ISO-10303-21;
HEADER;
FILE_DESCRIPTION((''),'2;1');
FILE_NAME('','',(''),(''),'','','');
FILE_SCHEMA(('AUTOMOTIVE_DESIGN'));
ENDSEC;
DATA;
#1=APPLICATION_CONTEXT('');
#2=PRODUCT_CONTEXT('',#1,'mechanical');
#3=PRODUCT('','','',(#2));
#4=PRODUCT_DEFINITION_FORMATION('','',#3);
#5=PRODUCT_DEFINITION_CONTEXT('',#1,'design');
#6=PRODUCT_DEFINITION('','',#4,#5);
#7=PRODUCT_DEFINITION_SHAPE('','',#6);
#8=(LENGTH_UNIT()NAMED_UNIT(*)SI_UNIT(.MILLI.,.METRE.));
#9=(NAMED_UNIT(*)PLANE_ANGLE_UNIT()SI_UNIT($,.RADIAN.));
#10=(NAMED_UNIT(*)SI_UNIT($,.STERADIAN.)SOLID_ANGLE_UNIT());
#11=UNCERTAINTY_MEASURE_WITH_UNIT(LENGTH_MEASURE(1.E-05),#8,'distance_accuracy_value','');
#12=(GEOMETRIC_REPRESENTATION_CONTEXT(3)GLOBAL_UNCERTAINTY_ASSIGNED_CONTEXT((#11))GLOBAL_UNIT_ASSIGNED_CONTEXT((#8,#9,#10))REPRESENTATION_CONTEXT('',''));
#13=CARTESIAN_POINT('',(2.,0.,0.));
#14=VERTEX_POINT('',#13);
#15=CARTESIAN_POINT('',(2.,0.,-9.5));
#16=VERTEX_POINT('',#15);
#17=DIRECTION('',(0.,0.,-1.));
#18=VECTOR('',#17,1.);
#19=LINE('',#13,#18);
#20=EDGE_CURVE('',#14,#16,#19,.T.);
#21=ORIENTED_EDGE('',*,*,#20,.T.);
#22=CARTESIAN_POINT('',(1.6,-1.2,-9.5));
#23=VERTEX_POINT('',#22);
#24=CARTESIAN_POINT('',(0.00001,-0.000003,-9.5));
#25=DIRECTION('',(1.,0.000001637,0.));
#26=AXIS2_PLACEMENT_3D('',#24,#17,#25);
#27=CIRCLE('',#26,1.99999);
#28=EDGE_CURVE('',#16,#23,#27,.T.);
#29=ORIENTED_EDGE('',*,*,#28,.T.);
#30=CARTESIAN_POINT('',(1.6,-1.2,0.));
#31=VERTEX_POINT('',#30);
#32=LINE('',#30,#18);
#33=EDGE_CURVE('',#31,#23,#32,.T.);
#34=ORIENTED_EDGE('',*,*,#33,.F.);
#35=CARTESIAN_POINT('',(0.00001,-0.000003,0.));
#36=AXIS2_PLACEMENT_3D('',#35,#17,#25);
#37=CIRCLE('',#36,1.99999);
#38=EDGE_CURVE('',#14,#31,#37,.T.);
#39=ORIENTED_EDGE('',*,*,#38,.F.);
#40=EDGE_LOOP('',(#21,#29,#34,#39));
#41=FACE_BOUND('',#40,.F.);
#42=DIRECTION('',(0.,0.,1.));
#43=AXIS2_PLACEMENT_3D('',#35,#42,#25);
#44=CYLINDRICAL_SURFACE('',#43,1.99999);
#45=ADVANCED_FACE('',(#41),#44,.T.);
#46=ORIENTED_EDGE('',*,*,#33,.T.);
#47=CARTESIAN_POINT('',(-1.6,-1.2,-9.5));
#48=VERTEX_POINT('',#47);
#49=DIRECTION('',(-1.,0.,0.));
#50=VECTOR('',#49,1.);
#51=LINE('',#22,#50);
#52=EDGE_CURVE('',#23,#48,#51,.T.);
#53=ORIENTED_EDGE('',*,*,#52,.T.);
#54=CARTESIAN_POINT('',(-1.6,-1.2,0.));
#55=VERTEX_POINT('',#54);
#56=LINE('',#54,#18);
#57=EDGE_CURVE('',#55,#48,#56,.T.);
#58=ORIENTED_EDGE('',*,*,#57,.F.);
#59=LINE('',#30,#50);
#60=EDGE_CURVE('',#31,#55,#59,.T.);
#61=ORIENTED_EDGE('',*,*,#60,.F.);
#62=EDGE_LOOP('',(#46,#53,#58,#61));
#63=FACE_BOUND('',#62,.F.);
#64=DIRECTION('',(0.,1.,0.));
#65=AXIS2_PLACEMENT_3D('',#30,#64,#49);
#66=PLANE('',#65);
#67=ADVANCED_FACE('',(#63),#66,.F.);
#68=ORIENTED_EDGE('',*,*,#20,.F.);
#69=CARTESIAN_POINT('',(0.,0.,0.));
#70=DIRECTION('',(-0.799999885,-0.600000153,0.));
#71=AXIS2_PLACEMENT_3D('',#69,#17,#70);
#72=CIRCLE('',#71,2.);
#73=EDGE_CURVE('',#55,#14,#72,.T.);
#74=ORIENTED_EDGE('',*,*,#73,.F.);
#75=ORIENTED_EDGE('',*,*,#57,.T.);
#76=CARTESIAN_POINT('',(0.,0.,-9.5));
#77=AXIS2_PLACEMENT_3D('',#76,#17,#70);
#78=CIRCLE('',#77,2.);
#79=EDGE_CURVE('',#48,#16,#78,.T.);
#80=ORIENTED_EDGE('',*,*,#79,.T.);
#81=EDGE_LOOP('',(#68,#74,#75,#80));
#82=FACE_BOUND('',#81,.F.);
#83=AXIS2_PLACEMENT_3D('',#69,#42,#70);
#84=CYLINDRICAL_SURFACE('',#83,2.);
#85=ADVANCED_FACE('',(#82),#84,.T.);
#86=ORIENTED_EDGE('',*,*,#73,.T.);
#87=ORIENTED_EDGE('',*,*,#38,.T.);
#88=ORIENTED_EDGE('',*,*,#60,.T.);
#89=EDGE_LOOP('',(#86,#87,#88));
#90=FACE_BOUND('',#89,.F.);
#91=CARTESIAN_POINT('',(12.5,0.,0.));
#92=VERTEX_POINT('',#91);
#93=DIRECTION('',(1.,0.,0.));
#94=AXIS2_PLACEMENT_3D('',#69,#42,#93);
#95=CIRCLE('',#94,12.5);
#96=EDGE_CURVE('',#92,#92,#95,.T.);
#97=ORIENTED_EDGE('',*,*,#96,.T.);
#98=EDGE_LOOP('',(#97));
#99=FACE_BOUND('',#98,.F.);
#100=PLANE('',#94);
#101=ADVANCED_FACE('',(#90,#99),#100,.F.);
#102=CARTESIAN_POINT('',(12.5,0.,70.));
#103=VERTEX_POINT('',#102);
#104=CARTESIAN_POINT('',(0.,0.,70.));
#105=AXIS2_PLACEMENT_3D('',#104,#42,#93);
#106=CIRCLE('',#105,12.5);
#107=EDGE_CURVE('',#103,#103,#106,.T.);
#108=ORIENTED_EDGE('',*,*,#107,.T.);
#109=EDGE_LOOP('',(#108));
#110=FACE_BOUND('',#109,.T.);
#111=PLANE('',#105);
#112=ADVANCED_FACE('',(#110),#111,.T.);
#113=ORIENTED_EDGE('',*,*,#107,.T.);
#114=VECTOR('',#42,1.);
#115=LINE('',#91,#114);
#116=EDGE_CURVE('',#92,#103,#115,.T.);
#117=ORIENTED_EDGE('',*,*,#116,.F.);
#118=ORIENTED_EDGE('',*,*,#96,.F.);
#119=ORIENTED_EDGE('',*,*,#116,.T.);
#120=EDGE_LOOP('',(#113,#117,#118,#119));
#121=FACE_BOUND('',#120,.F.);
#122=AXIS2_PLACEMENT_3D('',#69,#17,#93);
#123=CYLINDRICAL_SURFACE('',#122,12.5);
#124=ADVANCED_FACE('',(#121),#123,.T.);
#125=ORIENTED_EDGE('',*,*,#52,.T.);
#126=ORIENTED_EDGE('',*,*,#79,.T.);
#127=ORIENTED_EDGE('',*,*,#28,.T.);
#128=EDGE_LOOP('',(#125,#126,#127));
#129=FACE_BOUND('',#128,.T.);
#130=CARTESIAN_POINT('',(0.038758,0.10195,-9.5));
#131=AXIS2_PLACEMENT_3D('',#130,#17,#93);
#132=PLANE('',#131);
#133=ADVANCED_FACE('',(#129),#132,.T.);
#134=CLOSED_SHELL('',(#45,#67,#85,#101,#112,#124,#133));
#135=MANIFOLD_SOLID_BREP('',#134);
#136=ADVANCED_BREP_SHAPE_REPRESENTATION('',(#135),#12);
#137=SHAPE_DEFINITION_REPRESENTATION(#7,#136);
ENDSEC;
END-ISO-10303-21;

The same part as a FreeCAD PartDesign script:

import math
import FreeCAD as App
import Part
import Sketcher
from FreeCAD import Vector

doc = App.newDocument("Part")
params = doc.addObject("Spreadsheet::Sheet", "Params")
for row, (alias, value) in enumerate([
    ("sketch1_diameter", "25 mm"),
    ("pad1_length", "70 mm"),
    ("sketch2_radius", "2 mm"),
    ("sketch2_width", "3.2 mm"),
    ("pad2_length", "9.5 mm"),
], start=1):
    params.set(f"A{row}", alias)
    params.set(f"B{row}", "=" + value)
    params.setAlias(f"B{row}", alias)

body = doc.addObject("PartDesign::Body", "Body")

# Sketch on XY plane
sketch1 = body.newObject("Sketcher::SketchObject", "Sketch")
sketch1.AttachmentSupport = (doc.getObject("XY_Plane"), [""])
sketch1.MapMode = "FlatFace"
sketch1.addGeometry(Part.Circle(Vector(0, 0, 0), Vector(0, 0, 1), 12), False)
sketch1.addConstraint(Sketcher.Constraint("Coincident", 0, 3, -1, 1))
sketch1.addConstraint(Sketcher.Constraint("Diameter", 0, 25.0))
sketch1.setExpression("Constraints[1]", "Params.sketch1_diameter")
pad1 = body.newObject("PartDesign::Pad", "Pad")
pad1.Profile = sketch1
pad1.setExpression("Length", "Params.pad1_length")

# Sketch on XY plane
sketch2 = body.newObject("Sketcher::SketchObject", "Sketch001")
sketch2.AttachmentSupport = (doc.getObject("XY_Plane"), [""])
sketch2.MapMode = "FlatFace"
sketch2.addGeometry(Part.ArcOfCircle(Part.Circle(Vector(0, 0, 0), Vector(0, 0, 1), 2), math.radians(0), math.radians(217)), False)
sketch2.addGeometry(Part.ArcOfCircle(Part.Circle(Vector(0, 0, 0), Vector(0, 0, 1), 2), math.radians(-37), math.radians(0)), False)
sketch2.addGeometry(Part.LineSegment(Vector(1.6, -1.2, 0), Vector(-1.6, -1.2, 0)), False)
sketch2.addConstraint(Sketcher.Constraint("Tangent", 0, 1, 1, 2))
sketch2.addConstraint(Sketcher.Constraint("Coincident", 1, 1, 2, 1))
sketch2.addConstraint(Sketcher.Constraint("Coincident", 2, 2, 0, 2))
sketch2.addConstraint(Sketcher.Constraint("Horizontal", 2))
sketch2.addConstraint(Sketcher.Constraint("Coincident", 0, 3, -1, 1))
sketch2.addConstraint(Sketcher.Constraint("PointOnObject", 0, 1, -1))
sketch2.addConstraint(Sketcher.Constraint("Radius", 0, 2.0))
sketch2.addConstraint(Sketcher.Constraint("DistanceX", 2, 2, 2, 1, 3.2))
sketch2.addConstraint(Sketcher.Constraint("DistanceX", -1, 1, 1, 1, 1.6))
sketch2.setExpression("Constraints[6]", "Params.sketch2_radius")
sketch2.setExpression("Constraints[7]", "Params.sketch2_width")
pad2 = body.newObject("PartDesign::Pad", "Pad001")
pad2.Profile = sketch2
pad2.setExpression("Length", "Params.pad2_length")
pad2.Reversed = True

doc.recompute()
